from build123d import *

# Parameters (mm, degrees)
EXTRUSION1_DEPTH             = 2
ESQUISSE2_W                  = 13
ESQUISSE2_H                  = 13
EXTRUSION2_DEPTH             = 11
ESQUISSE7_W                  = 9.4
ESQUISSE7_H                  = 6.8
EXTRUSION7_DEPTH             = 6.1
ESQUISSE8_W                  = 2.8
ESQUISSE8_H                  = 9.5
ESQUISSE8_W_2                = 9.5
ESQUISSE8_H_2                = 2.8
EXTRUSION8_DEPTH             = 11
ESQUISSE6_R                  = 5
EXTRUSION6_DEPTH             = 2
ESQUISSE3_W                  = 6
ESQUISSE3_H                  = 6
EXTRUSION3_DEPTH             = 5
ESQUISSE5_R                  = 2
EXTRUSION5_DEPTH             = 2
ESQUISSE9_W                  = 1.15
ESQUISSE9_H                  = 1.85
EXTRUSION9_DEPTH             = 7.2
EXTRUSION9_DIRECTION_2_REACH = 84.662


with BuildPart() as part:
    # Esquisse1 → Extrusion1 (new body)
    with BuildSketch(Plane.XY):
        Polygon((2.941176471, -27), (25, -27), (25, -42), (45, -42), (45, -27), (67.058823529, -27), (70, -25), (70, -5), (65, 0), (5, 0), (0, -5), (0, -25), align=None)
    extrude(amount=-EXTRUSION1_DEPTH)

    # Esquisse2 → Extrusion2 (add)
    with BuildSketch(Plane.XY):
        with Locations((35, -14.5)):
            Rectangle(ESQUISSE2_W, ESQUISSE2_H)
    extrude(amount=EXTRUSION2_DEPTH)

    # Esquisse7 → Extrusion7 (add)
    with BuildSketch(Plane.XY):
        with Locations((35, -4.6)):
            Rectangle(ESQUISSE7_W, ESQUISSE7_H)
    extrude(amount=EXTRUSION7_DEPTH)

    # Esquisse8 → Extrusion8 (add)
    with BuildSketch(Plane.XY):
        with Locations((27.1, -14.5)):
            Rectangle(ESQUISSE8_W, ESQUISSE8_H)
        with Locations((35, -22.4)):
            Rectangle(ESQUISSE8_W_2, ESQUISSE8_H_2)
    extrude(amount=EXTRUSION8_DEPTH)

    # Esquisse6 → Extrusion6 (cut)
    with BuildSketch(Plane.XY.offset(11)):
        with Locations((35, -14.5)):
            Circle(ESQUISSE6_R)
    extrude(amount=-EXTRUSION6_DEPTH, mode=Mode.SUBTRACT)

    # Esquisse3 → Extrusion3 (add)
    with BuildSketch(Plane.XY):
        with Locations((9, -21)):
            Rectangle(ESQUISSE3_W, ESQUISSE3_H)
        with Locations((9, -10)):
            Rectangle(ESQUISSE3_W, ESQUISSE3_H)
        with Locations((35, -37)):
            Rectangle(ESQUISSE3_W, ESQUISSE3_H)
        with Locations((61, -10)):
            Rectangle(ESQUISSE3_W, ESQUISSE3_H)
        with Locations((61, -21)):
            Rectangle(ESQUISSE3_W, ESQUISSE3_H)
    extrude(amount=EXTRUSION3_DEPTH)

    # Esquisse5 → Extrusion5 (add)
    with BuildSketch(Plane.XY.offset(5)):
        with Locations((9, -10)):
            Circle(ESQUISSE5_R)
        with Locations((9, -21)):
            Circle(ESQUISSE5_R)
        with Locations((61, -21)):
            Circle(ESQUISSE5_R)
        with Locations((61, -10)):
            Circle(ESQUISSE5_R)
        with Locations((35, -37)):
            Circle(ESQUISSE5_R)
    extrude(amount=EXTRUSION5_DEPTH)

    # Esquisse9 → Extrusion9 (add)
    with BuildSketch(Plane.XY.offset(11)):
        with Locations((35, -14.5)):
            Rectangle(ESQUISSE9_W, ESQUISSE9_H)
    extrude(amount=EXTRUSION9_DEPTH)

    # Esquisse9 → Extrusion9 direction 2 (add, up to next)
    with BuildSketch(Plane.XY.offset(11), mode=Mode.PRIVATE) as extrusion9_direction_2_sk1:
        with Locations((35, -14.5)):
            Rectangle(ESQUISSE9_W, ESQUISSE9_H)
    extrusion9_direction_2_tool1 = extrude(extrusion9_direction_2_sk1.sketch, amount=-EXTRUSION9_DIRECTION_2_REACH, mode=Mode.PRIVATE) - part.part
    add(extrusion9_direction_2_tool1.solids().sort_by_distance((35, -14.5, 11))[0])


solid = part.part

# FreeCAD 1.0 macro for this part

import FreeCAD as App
import Part
import Sketcher
from FreeCAD import Vector

doc = App.newDocument("Part")
params = doc.addObject("Spreadsheet::Sheet", "Params")
for row, (alias, value) in enumerate([
    ("sketch1_width", "20 mm"),
    ("sketch1_width2", "60 mm"),
    ("sketch1_height", "15 mm"),
    ("pad1_length", "2 mm"),
    ("sketch2_width", "13 mm"),
    ("pad2_length", "11 mm"),
    ("sketch3_width", "9.4 mm"),
    ("sketch3_height", "6.8 mm"),
    ("pad3_length", "6.1 mm"),
    ("sketch4_width", "2.8 mm"),
    ("sketch4_width2", "9.5 mm"),
    ("pad4_length", "11 mm"),
    ("sketch5_diameter", "10 mm"),
    ("pocket1_length", "2 mm"),
    ("sketch6_width", "6 mm"),
    ("pad5_length", "5 mm"),
    ("sketch7_diameter", "4 mm"),
    ("pad6_length", "2 mm"),
    ("sketch8_width", "1.15 mm"),
    ("sketch8_height", "1.85 mm"),
    ("pad7_length", "7.2 mm"),
    ("sketch9_width", "1.15 mm"),
    ("sketch9_height", "1.85 mm"),
], start=1):
    params.set(f"A{row}", alias)
    params.set(f"B{row}", "=" + value)
    params.setAlias(f"B{row}", alias)

body = doc.addObject("PartDesign::Body", "Body")
body.AllowCompound = True

# Sketch on XY plane
sketch1 = body.newObject("Sketcher::SketchObject", "Sketch")
sketch1.AttachmentSupport = (doc.getObject("XY_Plane"), [""])
sketch1.MapMode = "FlatFace"
sketch1.addGeometry([
    Part.LineSegment(Vector(2.941176, -27, 0), Vector(25, -27, 0)),  # 0
    Part.LineSegment(Vector(25, -27, 0), Vector(25, -42, 0)),  # 1
    Part.LineSegment(Vector(25, -42, 0), Vector(45, -42, 0)),  # 2
    Part.LineSegment(Vector(45, -42, 0), Vector(45, -27, 0)),  # 3
    Part.LineSegment(Vector(45, -27, 0), Vector(67.058824, -27, 0)),  # 4
    Part.LineSegment(Vector(67.058824, -27, 0), Vector(70, -25, 0)),  # 5
    Part.LineSegment(Vector(70, -25, 0), Vector(70, -5, 0)),  # 6
    Part.LineSegment(Vector(70, -5, 0), Vector(65, 0, 0)),  # 7
    Part.LineSegment(Vector(65, 0, 0), Vector(5, 0, 0)),  # 8
    Part.LineSegment(Vector(5, 0, 0), Vector(0, -5, 0)),  # 9
    Part.LineSegment(Vector(0, -5, 0), Vector(0, -25, 0)),  # 10
    Part.LineSegment(Vector(0, -25, 0), Vector(2.941176, -27, 0)),  # 11
], False)
sketch1.addConstraint([
    Sketcher.Constraint("Coincident", 0, 2, 1, 1),
    Sketcher.Constraint("Coincident", 1, 2, 2, 1),
    Sketcher.Constraint("Coincident", 2, 2, 3, 1),
    Sketcher.Constraint("Coincident", 3, 2, 4, 1),
    Sketcher.Constraint("Coincident", 4, 2, 5, 1),
    Sketcher.Constraint("Coincident", 5, 2, 6, 1),
    Sketcher.Constraint("Coincident", 6, 2, 7, 1),
    Sketcher.Constraint("Coincident", 7, 2, 8, 1),
    Sketcher.Constraint("Coincident", 8, 2, 9, 1),
    Sketcher.Constraint("Coincident", 9, 2, 10, 1),
    Sketcher.Constraint("Coincident", 10, 2, 11, 1),
    Sketcher.Constraint("Coincident", 11, 2, 0, 1),
    Sketcher.Constraint("Horizontal", 0),
    Sketcher.Constraint("Vertical", 1),
    Sketcher.Constraint("Horizontal", 2),
    Sketcher.Constraint("Vertical", 3),
    Sketcher.Constraint("Horizontal", 4),
    Sketcher.Constraint("Vertical", 6),
    Sketcher.Constraint("Horizontal", 8),
    Sketcher.Constraint("Vertical", 10),
    Sketcher.Constraint("PointOnObject", 7, 2, -1),
    Sketcher.Constraint("PointOnObject", 9, 2, -2),
    Sketcher.Constraint("Perpendicular", 7, 9),
    Sketcher.Constraint("Horizontal", 0, 2, 3, 2),
    Sketcher.Constraint("Horizontal", 6, 2, 9, 2),
    Sketcher.Constraint("Horizontal", 5, 2, 10, 2),
    Sketcher.Constraint("Equal", 0, 4),
    Sketcher.Constraint("Equal", 2, 6),
    Sketcher.Constraint("Equal", 7, 9),
    Sketcher.Constraint("Equal", 5, 11),
    Sketcher.Constraint("DistanceX", 2, 1, 2, 2, 20.0),
    Sketcher.Constraint("DistanceX", 8, 2, 8, 1, 60.0),
    Sketcher.Constraint("DistanceY", 1, 2, 1, 1, 15.0),
    Sketcher.Constraint("DistanceX", -1, 1, 0, 2, 25.0),
    Sketcher.Constraint("DistanceY", 0, 2, -1, 1, 27.0),
    Sketcher.Constraint("DistanceX", 0, 1, 0, 2, 22.058824),
])
sketch1.setExpression("Constraints[30]", "Params.sketch1_width")
sketch1.setExpression("Constraints[31]", "Params.sketch1_width2")
sketch1.setExpression("Constraints[32]", "Params.sketch1_height")
pad1 = body.newObject("PartDesign::Pad", "Pad")
pad1.Profile = sketch1
pad1.setExpression("Length", "Params.pad1_length")
pad1.Reversed = True

# Sketch on XY plane
sketch2 = body.newObject("Sketcher::SketchObject", "Sketch001")
sketch2.AttachmentSupport = (doc.getObject("XY_Plane"), [""])
sketch2.MapMode = "FlatFace"
sketch2.addGeometry([
    Part.LineSegment(Vector(28.5, -8, 0), Vector(28.5, -21, 0)),
    Part.LineSegment(Vector(28.5, -21, 0), Vector(41.5, -21, 0)),
    Part.LineSegment(Vector(41.5, -21, 0), Vector(41.5, -8, 0)),
    Part.LineSegment(Vector(41.5, -8, 0), Vector(28.5, -8, 0)),
], False)
sketch2.addConstraint([
    Sketcher.Constraint("Coincident", 0, 2, 1, 1),
    Sketcher.Constraint("Coincident", 1, 2, 2, 1),
    Sketcher.Constraint("Coincident", 2, 2, 3, 1),
    Sketcher.Constraint("Coincident", 3, 2, 0, 1),
    Sketcher.Constraint("Vertical", 0),
    Sketcher.Constraint("Horizontal", 1),
    Sketcher.Constraint("Vertical", 2),
    Sketcher.Constraint("Horizontal", 3),
    Sketcher.Constraint("Equal", 3, 0),
    Sketcher.Constraint("DistanceX", 1, 1, 1, 2, 13.0),
    Sketcher.Constraint("DistanceY", 0, 2, -1, 1, 21.0),
    Sketcher.Constraint("DistanceX", -1, 1, 0, 2, 28.5),
])
sketch2.setExpression("Constraints[9]", "Params.sketch2_width")
pad2 = body.newObject("PartDesign::Pad", "Pad001")
pad2.Profile = sketch2
pad2.setExpression("Length", "Params.pad2_length")

# Sketch on XY plane
sketch3 = body.newObject("Sketcher::SketchObject", "Sketch002")
sketch3.AttachmentSupport = (doc.getObject("XY_Plane"), [""])
sketch3.MapMode = "FlatFace"
sketch3.addGeometry([
    Part.LineSegment(Vector(30.3, -1.2, 0), Vector(30.3, -8, 0)),
    Part.LineSegment(Vector(30.3, -8, 0), Vector(39.7, -8, 0)),
    Part.LineSegment(Vector(39.7, -8, 0), Vector(39.7, -1.2, 0)),
    Part.LineSegment(Vector(39.7, -1.2, 0), Vector(30.3, -1.2, 0)),
], False)
sketch3.addConstraint([
    Sketcher.Constraint("Coincident", 0, 2, 1, 1),
    Sketcher.Constraint("Coincident", 1, 2, 2, 1),
    Sketcher.Constraint("Coincident", 2, 2, 3, 1),
    Sketcher.Constraint("Coincident", 3, 2, 0, 1),
    Sketcher.Constraint("Vertical", 0),
    Sketcher.Constraint("Horizontal", 1),
    Sketcher.Constraint("Vertical", 2),
    Sketcher.Constraint("Horizontal", 3),
    Sketcher.Constraint("DistanceX", 1, 1, 1, 2, 9.4),
    Sketcher.Constraint("DistanceY", 0, 2, 0, 1, 6.8),
    Sketcher.Constraint("DistanceY", 0, 2, -1, 1, 8.0),
    Sketcher.Constraint("DistanceX", -1, 1, 0, 2, 30.3),
])
sketch3.setExpression("Constraints[8]", "Params.sketch3_width")
sketch3.setExpression("Constraints[9]", "Params.sketch3_height")
pad3 = body.newObject("PartDesign::Pad", "Pad002")
pad3.Profile = sketch3
pad3.setExpression("Length", "Params.pad3_length")

# Sketch on XY plane
sketch4 = body.newObject("Sketcher::SketchObject", "Sketch003")
sketch4.AttachmentSupport = (doc.getObject("XY_Plane"), [""])
sketch4.MapMode = "FlatFace"
sketch4.addGeometry([
    Part.LineSegment(Vector(25.7, -9.75, 0), Vector(25.7, -19.25, 0)),  # 0
    Part.LineSegment(Vector(25.7, -19.25, 0), Vector(28.5, -19.25, 0)),  # 1
    Part.LineSegment(Vector(28.5, -19.25, 0), Vector(28.5, -9.75, 0)),  # 2
    Part.LineSegment(Vector(28.5, -9.75, 0), Vector(25.7, -9.75, 0)),  # 3
    Part.LineSegment(Vector(30.25, -21, 0), Vector(30.25, -23.8, 0)),  # 4
    Part.LineSegment(Vector(30.25, -23.8, 0), Vector(39.75, -23.8, 0)),  # 5
    Part.LineSegment(Vector(39.75, -23.8, 0), Vector(39.75, -21, 0)),  # 6
    Part.LineSegment(Vector(39.75, -21, 0), Vector(30.25, -21, 0)),  # 7
], False)
sketch4.addConstraint([
    Sketcher.Constraint("Coincident", 0, 2, 1, 1),
    Sketcher.Constraint("Coincident", 1, 2, 2, 1),
    Sketcher.Constraint("Coincident", 2, 2, 3, 1),
    Sketcher.Constraint("Coincident", 3, 2, 0, 1),
    Sketcher.Constraint("Coincident", 4, 2, 5, 1),
    Sketcher.Constraint("Coincident", 5, 2, 6, 1),
    Sketcher.Constraint("Coincident", 6, 2, 7, 1),
    Sketcher.Constraint("Coincident", 7, 2, 4, 1),
    Sketcher.Constraint("Vertical", 0),
    Sketcher.Constraint("Horizontal", 1),
    Sketcher.Constraint("Vertical", 2),
    Sketcher.Constraint("Horizontal", 3),
    Sketcher.Constraint("Vertical", 4),
    Sketcher.Constraint("Horizontal", 5),
    Sketcher.Constraint("Vertical", 6),
    Sketcher.Constraint("Horizontal", 7),
    Sketcher.Constraint("Equal", 7, 0),
    Sketcher.Constraint("Equal", 3, 4),
    Sketcher.Constraint("DistanceX", 1, 1, 1, 2, 2.8),
    Sketcher.Constraint("DistanceX", 5, 1, 5, 2, 9.5),
    Sketcher.Constraint("DistanceY", 6, 2, -1, 1, 21.0),
    Sketcher.Constraint("DistanceX", -1, 1, 0, 2, 25.7),
    Sketcher.Constraint("DistanceY", 0, 2, -1, 1, 19.25),
    Sketcher.Constraint("DistanceX", -1, 1, 4, 2, 30.25),
])
sketch4.setExpression("Constraints[18]", "Params.sketch4_width")
sketch4.setExpression("Constraints[19]", "Params.sketch4_width2")
pad4 = body.newObject("PartDesign::Pad", "Pad003")
pad4.Profile = sketch4
pad4.setExpression("Length", "Params.pad4_length")

# Sketch on XY plane
sketch5 = body.newObject("Sketcher::SketchObject", "Sketch004")
sketch5.AttachmentSupport = (doc.getObject("XY_Plane"), [""])
sketch5.MapMode = "FlatFace"
sketch5.AttachmentOffset = App.Placement(Vector(0, 0, 11), App.Rotation())
sketch5.addGeometry(Part.Circle(Vector(35, -14.5, 0), Vector(0, 0, 1), 5), False)
sketch5.addConstraint([
    Sketcher.Constraint("Diameter", 0, 10.0),
    Sketcher.Constraint("DistanceX", -1, 1, 0, 3, 35.0),
    Sketcher.Constraint("DistanceY", 0, 3, -1, 1, 14.5),
])
sketch5.setExpression("Constraints[0]", "Params.sketch5_diameter")
pocket1 = body.newObject("PartDesign::Pocket", "Pocket")
pocket1.Profile = sketch5
pocket1.setExpression("Length", "Params.pocket1_length")

# Sketch on XY plane
sketch6 = body.newObject("Sketcher::SketchObject", "Sketch005")
sketch6.AttachmentSupport = (doc.getObject("XY_Plane"), [""])
sketch6.MapMode = "FlatFace"
sketch6.addGeometry([
    Part.LineSegment(Vector(6, -18, 0), Vector(6, -24, 0)),  # 0
    Part.LineSegment(Vector(6, -24, 0), Vector(12, -24, 0)),  # 1
    Part.LineSegment(Vector(12, -24, 0), Vector(12, -18, 0)),  # 2
    Part.LineSegment(Vector(12, -18, 0), Vector(6, -18, 0)),  # 3
    Part.LineSegment(Vector(6, -7, 0), Vector(6, -13, 0)),  # 4
    Part.LineSegment(Vector(6, -13, 0), Vector(12, -13, 0)),  # 5
    Part.LineSegment(Vector(12, -13, 0), Vector(12, -7, 0)),  # 6
    Part.LineSegment(Vector(12, -7, 0), Vector(6, -7, 0)),  # 7
    Part.LineSegment(Vector(32, -34, 0), Vector(32, -40, 0)),  # 8
    Part.LineSegment(Vector(32, -40, 0), Vector(38, -40, 0)),  # 9
    Part.LineSegment(Vector(38, -40, 0), Vector(38, -34, 0)),  # 10
    Part.LineSegment(Vector(38, -34, 0), Vector(32, -34, 0)),  # 11
    Part.LineSegment(Vector(58, -7, 0), Vector(58, -13, 0)),  # 12
    Part.LineSegment(Vector(58, -13, 0), Vector(64, -13, 0)),  # 13
    Part.LineSegment(Vector(64, -13, 0), Vector(64, -7, 0)),  # 14
    Part.LineSegment(Vector(64, -7, 0), Vector(58, -7, 0)),  # 15
    Part.LineSegment(Vector(58, -18, 0), Vector(58, -24, 0)),  # 16
    Part.LineSegment(Vector(58, -24, 0), Vector(64, -24, 0)),  # 17
    Part.LineSegment(Vector(64, -24, 0), Vector(64, -18, 0)),  # 18
    Part.LineSegment(Vector(64, -18, 0), Vector(58, -18, 0)),  # 19
], False)
sketch6.addConstraint([
    Sketcher.Constraint("Coincident", 0, 2, 1, 1),
    Sketcher.Constraint("Coincident", 1, 2, 2, 1),
    Sketcher.Constraint("Coincident", 2, 2, 3, 1),
    Sketcher.Constraint("Coincident", 3, 2, 0, 1),
    Sketcher.Constraint("Coincident", 4, 2, 5, 1),
    Sketcher.Constraint("Coincident", 5, 2, 6, 1),
    Sketcher.Constraint("Coincident", 6, 2, 7, 1),
    Sketcher.Constraint("Coincident", 7, 2, 4, 1),
    Sketcher.Constraint("Coincident", 8, 2, 9, 1),
    Sketcher.Constraint("Coincident", 9, 2, 10, 1),
    Sketcher.Constraint("Coincident", 10, 2, 11, 1),
    Sketcher.Constraint("Coincident", 11, 2, 8, 1),
    Sketcher.Constraint("Coincident", 12, 2, 13, 1),
    Sketcher.Constraint("Coincident", 13, 2, 14, 1),
    Sketcher.Constraint("Coincident", 14, 2, 15, 1),
    Sketcher.Constraint("Coincident", 15, 2, 12, 1),
    Sketcher.Constraint("Coincident", 16, 2, 17, 1),
    Sketcher.Constraint("Coincident", 17, 2, 18, 1),
    Sketcher.Constraint("Coincident", 18, 2, 19, 1),
    Sketcher.Constraint("Coincident", 19, 2, 16, 1),
    Sketcher.Constraint("Vertical", 0),
    Sketcher.Constraint("Horizontal", 1),
    Sketcher.Constraint("Vertical", 2),
    Sketcher.Constraint("Horizontal", 3),
    Sketcher.Constraint("Vertical", 4),
    Sketcher.Constraint("Horizontal", 5),
    Sketcher.Constraint("Vertical", 6),
    Sketcher.Constraint("Horizontal", 7),
    Sketcher.Constraint("Vertical", 8),
    Sketcher.Constraint("Horizontal", 9),
    Sketcher.Constraint("Vertical", 10),
    Sketcher.Constraint("Horizontal", 11),
    Sketcher.Constraint("Vertical", 12),
    Sketcher.Constraint("Horizontal", 13),
    Sketcher.Constraint("Vertical", 14),
    Sketcher.Constraint("Horizontal", 15),
    Sketcher.Constraint("Vertical", 16),
    Sketcher.Constraint("Horizontal", 17),
    Sketcher.Constraint("Vertical", 18),
    Sketcher.Constraint("Horizontal", 19),
    Sketcher.Constraint("Horizontal", 5, 2, 12, 2),
    Sketcher.Constraint("Horizontal", 7, 2, 14, 2),
    Sketcher.Constraint("Horizontal", 1, 2, 16, 2),
    Sketcher.Constraint("Horizontal", 3, 2, 18, 2),
    Sketcher.Constraint("Vertical", 3, 2, 4, 2),
    Sketcher.Constraint("Vertical", 2, 2, 5, 2),
    Sketcher.Constraint("Vertical", 15, 2, 16, 2),
    Sketcher.Constraint("Vertical", 14, 2, 17, 2),
    Sketcher.Constraint("Equal", 7, 9),
    Sketcher.Constraint("Equal", 11, 13),
    Sketcher.Constraint("Equal", 19, 0),
    Sketcher.Constraint("Equal", 2, 4),
    Sketcher.Constraint("Equal", 6, 8),
    Sketcher.Constraint("DistanceX", 1, 1, 1, 2, 6.0),
    Sketcher.Constraint("DistanceX", -1, 1, 0, 2, 6.0),
    Sketcher.Constraint("DistanceY", 0, 2, -1, 1, 24.0),
    Sketcher.Constraint("DistanceY", 4, 2, -1, 1, 13.0),
    Sketcher.Constraint("DistanceX", -1, 1, 8, 2, 32.0),
    Sketcher.Constraint("DistanceY", 8, 2, -1, 1, 40.0),
    Sketcher.Constraint("DistanceX", -1, 1, 12, 2, 58.0),
])
sketch6.setExpression("Constraints[53]", "Params.sketch6_width")
pad5 = body.newObject("PartDesign::Pad", "Pad004")
pad5.Profile = sketch6
pad5.setExpression("Length", "Params.pad5_length")

# Sketch on XY plane
sketch7 = body.newObject("Sketcher::SketchObject", "Sketch006")
sketch7.AttachmentSupport = (doc.getObject("XY_Plane"), [""])
sketch7.MapMode = "FlatFace"
sketch7.AttachmentOffset = App.Placement(Vector(0, 0, 5), App.Rotation())
sketch7.addGeometry([
    Part.Circle(Vector(9, -10, 0), Vector(0, 0, 1), 2),  # 0
    Part.Circle(Vector(9, -21, 0), Vector(0, 0, 1), 2),  # 1
    Part.Circle(Vector(61, -21, 0), Vector(0, 0, 1), 2),  # 2
    Part.Circle(Vector(61, -10, 0), Vector(0, 0, 1), 2),  # 3
    Part.Circle(Vector(35, -37, 0), Vector(0, 0, 1), 2),  # 4
], False)
sketch7.addConstraint([
    Sketcher.Constraint("Equal", 0, 1),
    Sketcher.Constraint("Equal", 1, 2),
    Sketcher.Constraint("Equal", 2, 3),
    Sketcher.Constraint("Equal", 3, 4),
    Sketcher.Constraint("Horizontal", 1, 3, 2, 3),
    Sketcher.Constraint("Horizontal", 0, 3, 3, 3),
    Sketcher.Constraint("Vertical", 0, 3, 1, 3),
    Sketcher.Constraint("Vertical", 2, 3, 3, 3),
    Sketcher.Constraint("Diameter", 0, 4.0),
    Sketcher.Constraint("DistanceX", -1, 1, 0, 3, 9.0),
    Sketcher.Constraint("DistanceY", 0, 3, -1, 1, 10.0),
    Sketcher.Constraint("DistanceY", 1, 3, -1, 1, 21.0),
    Sketcher.Constraint("DistanceX", -1, 1, 2, 3, 61.0),
    Sketcher.Constraint("DistanceX", -1, 1, 4, 3, 35.0),
    Sketcher.Constraint("DistanceY", 4, 3, -1, 1, 37.0),
])
sketch7.setExpression("Constraints[8]", "Params.sketch7_diameter")
pad6 = body.newObject("PartDesign::Pad", "Pad005")
pad6.Profile = sketch7
pad6.setExpression("Length", "Params.pad6_length")

# Sketch on XY plane
sketch8 = body.newObject("Sketcher::SketchObject", "Sketch007")
sketch8.AttachmentSupport = (doc.getObject("XY_Plane"), [""])
sketch8.MapMode = "FlatFace"
sketch8.AttachmentOffset = App.Placement(Vector(0, 0, 11), App.Rotation())
sketch8.addGeometry([
    Part.LineSegment(Vector(34.425, -13.575, 0), Vector(34.425, -15.425, 0)),
    Part.LineSegment(Vector(34.425, -15.425, 0), Vector(35.575, -15.425, 0)),
    Part.LineSegment(Vector(35.575, -15.425, 0), Vector(35.575, -13.575, 0)),
    Part.LineSegment(Vector(35.575, -13.575, 0), Vector(34.425, -13.575, 0)),
], False)
sketch8.addConstraint([
    Sketcher.Constraint("Coincident", 0, 2, 1, 1),
    Sketcher.Constraint("Coincident", 1, 2, 2, 1),
    Sketcher.Constraint("Coincident", 2, 2, 3, 1),
    Sketcher.Constraint("Coincident", 3, 2, 0, 1),
    Sketcher.Constraint("Vertical", 0),
    Sketcher.Constraint("Horizontal", 1),
    Sketcher.Constraint("Vertical", 2),
    Sketcher.Constraint("Horizontal", 3),
    Sketcher.Constraint("DistanceX", 1, 1, 1, 2, 1.15),
    Sketcher.Constraint("DistanceY", 0, 2, 0, 1, 1.85),
    Sketcher.Constraint("DistanceX", -1, 1, 0, 2, 34.425),
    Sketcher.Constraint("DistanceY", 0, 2, -1, 1, 15.425),
])
sketch8.setExpression("Constraints[8]", "Params.sketch8_width")
sketch8.setExpression("Constraints[9]", "Params.sketch8_height")
pad7 = body.newObject("PartDesign::Pad", "Pad006")
pad7.Profile = sketch8
pad7.setExpression("Length", "Params.pad7_length")

# Sketch on XY plane
sketch9 = body.newObject("Sketcher::SketchObject", "Sketch008")
sketch9.AttachmentSupport = (doc.getObject("XY_Plane"), [""])
sketch9.MapMode = "FlatFace"
sketch9.AttachmentOffset = App.Placement(Vector(0, 0, 11), App.Rotation())
sketch9.addGeometry([
    Part.LineSegment(Vector(34.425, -13.575, 0), Vector(34.425, -15.425, 0)),
    Part.LineSegment(Vector(34.425, -15.425, 0), Vector(35.575, -15.425, 0)),
    Part.LineSegment(Vector(35.575, -15.425, 0), Vector(35.575, -13.575, 0)),
    Part.LineSegment(Vector(35.575, -13.575, 0), Vector(34.425, -13.575, 0)),
], False)
sketch9.addConstraint([
    Sketcher.Constraint("Coincident", 0, 2, 1, 1),
    Sketcher.Constraint("Coincident", 1, 2, 2, 1),
    Sketcher.Constraint("Coincident", 2, 2, 3, 1),
    Sketcher.Constraint("Coincident", 3, 2, 0, 1),
    Sketcher.Constraint("Vertical", 0),
    Sketcher.Constraint("Horizontal", 1),
    Sketcher.Constraint("Vertical", 2),
    Sketcher.Constraint("Horizontal", 3),
    Sketcher.Constraint("DistanceX", 1, 1, 1, 2, 1.15),
    Sketcher.Constraint("DistanceY", 0, 2, 0, 1, 1.85),
    Sketcher.Constraint("DistanceX", -1, 1, 0, 2, 34.425),
    Sketcher.Constraint("DistanceY", 0, 2, -1, 1, 15.425),
])
sketch9.setExpression("Constraints[8]", "Params.sketch9_width")
sketch9.setExpression("Constraints[9]", "Params.sketch9_height")
pad8 = body.newObject("PartDesign::Pad", "Pad007")
pad8.Profile = sketch9
pad8.Type = "UpToFirst"
pad8.Reversed = True

doc.recompute()
